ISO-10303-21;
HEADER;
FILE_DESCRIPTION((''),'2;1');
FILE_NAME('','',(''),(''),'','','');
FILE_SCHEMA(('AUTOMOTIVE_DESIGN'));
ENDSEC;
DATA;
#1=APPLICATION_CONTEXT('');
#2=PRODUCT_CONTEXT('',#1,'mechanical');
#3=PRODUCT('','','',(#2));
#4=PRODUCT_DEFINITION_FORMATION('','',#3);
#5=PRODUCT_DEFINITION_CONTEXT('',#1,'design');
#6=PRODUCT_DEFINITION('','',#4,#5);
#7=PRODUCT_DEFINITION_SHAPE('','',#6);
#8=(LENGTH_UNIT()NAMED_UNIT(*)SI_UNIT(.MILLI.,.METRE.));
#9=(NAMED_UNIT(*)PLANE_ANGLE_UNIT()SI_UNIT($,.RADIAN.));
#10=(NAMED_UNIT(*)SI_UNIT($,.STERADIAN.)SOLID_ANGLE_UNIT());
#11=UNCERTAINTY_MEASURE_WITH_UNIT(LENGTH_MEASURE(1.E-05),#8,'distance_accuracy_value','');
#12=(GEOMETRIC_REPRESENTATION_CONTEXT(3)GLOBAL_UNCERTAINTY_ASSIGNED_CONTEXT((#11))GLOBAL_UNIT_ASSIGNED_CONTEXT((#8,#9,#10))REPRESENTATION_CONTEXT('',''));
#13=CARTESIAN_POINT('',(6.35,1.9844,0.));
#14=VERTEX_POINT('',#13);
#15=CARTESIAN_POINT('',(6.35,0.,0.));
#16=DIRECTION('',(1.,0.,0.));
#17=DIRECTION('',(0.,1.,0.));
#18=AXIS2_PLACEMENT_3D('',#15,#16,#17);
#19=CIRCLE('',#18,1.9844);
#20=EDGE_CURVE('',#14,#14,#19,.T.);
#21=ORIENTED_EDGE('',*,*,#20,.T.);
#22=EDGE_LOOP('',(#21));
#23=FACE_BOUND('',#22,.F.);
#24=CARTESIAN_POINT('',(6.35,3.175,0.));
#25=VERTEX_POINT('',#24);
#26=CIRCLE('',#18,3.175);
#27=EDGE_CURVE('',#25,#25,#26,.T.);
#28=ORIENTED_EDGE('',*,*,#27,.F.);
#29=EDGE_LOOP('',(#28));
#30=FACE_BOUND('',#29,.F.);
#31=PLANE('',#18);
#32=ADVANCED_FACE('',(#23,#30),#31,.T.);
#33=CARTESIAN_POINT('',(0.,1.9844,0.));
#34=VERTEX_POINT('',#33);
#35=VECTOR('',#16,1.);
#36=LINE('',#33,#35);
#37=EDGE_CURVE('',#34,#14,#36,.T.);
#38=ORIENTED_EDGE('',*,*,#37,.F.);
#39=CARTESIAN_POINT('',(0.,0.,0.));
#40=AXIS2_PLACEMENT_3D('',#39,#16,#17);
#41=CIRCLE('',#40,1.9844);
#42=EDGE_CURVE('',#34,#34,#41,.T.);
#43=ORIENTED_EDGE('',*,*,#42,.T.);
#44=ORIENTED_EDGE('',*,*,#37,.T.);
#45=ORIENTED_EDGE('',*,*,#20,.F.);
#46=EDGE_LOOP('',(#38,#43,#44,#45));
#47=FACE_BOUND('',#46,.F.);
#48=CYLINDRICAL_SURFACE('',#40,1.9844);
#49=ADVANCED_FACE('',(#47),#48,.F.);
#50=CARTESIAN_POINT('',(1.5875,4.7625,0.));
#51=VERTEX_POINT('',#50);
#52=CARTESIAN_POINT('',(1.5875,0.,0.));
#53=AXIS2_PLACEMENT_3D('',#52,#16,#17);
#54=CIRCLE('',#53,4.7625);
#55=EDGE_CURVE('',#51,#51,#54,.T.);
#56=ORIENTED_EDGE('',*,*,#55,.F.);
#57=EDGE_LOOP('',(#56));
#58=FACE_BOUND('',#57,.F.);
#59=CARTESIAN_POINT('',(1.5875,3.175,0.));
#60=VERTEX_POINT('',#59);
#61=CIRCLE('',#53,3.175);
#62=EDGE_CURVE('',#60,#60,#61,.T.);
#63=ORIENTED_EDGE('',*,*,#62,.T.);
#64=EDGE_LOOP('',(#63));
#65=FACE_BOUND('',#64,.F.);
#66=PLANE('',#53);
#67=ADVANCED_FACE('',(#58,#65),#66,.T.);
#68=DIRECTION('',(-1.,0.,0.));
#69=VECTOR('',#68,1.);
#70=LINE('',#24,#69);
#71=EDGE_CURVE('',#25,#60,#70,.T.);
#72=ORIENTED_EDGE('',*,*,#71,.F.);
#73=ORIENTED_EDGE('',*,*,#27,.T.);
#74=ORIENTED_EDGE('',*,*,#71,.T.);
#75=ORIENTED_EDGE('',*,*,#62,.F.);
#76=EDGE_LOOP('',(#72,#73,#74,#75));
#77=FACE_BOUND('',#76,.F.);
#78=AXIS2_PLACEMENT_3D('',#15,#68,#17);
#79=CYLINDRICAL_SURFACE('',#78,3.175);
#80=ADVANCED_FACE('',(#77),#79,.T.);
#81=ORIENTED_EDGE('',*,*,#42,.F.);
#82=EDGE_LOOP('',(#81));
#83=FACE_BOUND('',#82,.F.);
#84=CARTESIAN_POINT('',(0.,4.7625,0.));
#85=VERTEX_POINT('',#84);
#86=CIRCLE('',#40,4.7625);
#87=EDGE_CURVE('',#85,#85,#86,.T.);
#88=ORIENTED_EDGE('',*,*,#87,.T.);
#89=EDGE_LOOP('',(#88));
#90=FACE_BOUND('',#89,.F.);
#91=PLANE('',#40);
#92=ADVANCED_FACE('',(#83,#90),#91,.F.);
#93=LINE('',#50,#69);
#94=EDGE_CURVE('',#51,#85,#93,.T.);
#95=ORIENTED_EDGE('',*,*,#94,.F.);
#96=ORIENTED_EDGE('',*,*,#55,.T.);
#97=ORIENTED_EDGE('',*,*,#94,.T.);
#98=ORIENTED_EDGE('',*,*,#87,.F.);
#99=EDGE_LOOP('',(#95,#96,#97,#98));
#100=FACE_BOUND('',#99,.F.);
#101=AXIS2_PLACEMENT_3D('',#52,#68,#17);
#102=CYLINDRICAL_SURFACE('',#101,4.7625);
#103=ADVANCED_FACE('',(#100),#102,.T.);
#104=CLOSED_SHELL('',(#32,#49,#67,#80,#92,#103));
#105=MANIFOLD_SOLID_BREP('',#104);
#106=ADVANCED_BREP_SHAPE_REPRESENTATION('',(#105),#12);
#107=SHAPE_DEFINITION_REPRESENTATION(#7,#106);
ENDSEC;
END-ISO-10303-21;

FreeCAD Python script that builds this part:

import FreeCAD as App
import Part
import Sketcher
Q = App.Units.Quantity

doc = App.newDocument("Part")
body = doc.addObject("PartDesign::Body", "Body")

# Sketch on XY plane
sketch1 = doc.addObject("Sketcher::SketchObject", "Sketch")
body.addObject(sketch1)
sketch1.AttachmentSupport = (doc.XY_Plane, [""])
sketch1.MapMode = "FlatFace"
sketch1.addGeometry(Part.LineSegment(App.Vector(0, 4.8, 0), App.Vector(0, 2, 0)), False)
sketch1.addGeometry(Part.LineSegment(App.Vector(0, 2, 0), App.Vector(6.3, 2, 0)), False)
sketch1.addGeometry(Part.LineSegment(App.Vector(6.3, 2, 0), App.Vector(6.3, 3.2, 0)), False)
sketch1.addGeometry(Part.LineSegment(App.Vector(6.3, 3.2, 0), App.Vector(1.6, 3.2, 0)), False)
sketch1.addGeometry(Part.LineSegment(App.Vector(1.6, 3.2, 0), App.Vector(1.6, 4.8, 0)), False)
sketch1.addGeometry(Part.LineSegment(App.Vector(1.6, 4.8, 0), App.Vector(0, 4.8, 0)), False)
sketch1.addConstraint(Sketcher.Constraint("Coincident", 0, 2, 1, 1))
sketch1.addConstraint(Sketcher.Constraint("Coincident", 1, 2, 2, 1))
sketch1.addConstraint(Sketcher.Constraint("Coincident", 2, 2, 3, 1))
sketch1.addConstraint(Sketcher.Constraint("Coincident", 3, 2, 4, 1))
sketch1.addConstraint(Sketcher.Constraint("Coincident", 4, 2, 5, 1))
sketch1.addConstraint(Sketcher.Constraint("Coincident", 5, 2, 0, 1))
sketch1.addConstraint(Sketcher.Constraint("Vertical", 0))
sketch1.addConstraint(Sketcher.Constraint("Horizontal", 1))
sketch1.addConstraint(Sketcher.Constraint("Vertical", 2))
sketch1.addConstraint(Sketcher.Constraint("Horizontal", 3))
sketch1.addConstraint(Sketcher.Constraint("Vertical", 4))
sketch1.addConstraint(Sketcher.Constraint("Horizontal", 5))
sketch1.addConstraint(Sketcher.Constraint("PointOnObject", 0, 2, -2))
sketch1.addConstraint(Sketcher.Constraint("Equal", 5, 4))
sketch1.addConstraint(Sketcher.Constraint("DistanceX", 1, 1, 1, 2, Q("0.25 in")))
sketch1.addConstraint(Sketcher.Constraint("DistanceX", 3, 2, 3, 1, Q("0.1875 in")))
sketch1.addConstraint(Sketcher.Constraint("DistanceY", -1, 1, 4, 2, Q("0.1875 in")))
sketch1.addConstraint(Sketcher.Constraint("DistanceY", 0, 2, 0, 1, Q("0.1093701 in")))
revolution = doc.addObject("PartDesign::Revolution", "Revolution")
body.addObject(revolution)
revolution.Profile = sketch1
revolution.ReferenceAxis = (sketch1, ["H_Axis"])
revolution.Angle = 360

doc.recompute()
